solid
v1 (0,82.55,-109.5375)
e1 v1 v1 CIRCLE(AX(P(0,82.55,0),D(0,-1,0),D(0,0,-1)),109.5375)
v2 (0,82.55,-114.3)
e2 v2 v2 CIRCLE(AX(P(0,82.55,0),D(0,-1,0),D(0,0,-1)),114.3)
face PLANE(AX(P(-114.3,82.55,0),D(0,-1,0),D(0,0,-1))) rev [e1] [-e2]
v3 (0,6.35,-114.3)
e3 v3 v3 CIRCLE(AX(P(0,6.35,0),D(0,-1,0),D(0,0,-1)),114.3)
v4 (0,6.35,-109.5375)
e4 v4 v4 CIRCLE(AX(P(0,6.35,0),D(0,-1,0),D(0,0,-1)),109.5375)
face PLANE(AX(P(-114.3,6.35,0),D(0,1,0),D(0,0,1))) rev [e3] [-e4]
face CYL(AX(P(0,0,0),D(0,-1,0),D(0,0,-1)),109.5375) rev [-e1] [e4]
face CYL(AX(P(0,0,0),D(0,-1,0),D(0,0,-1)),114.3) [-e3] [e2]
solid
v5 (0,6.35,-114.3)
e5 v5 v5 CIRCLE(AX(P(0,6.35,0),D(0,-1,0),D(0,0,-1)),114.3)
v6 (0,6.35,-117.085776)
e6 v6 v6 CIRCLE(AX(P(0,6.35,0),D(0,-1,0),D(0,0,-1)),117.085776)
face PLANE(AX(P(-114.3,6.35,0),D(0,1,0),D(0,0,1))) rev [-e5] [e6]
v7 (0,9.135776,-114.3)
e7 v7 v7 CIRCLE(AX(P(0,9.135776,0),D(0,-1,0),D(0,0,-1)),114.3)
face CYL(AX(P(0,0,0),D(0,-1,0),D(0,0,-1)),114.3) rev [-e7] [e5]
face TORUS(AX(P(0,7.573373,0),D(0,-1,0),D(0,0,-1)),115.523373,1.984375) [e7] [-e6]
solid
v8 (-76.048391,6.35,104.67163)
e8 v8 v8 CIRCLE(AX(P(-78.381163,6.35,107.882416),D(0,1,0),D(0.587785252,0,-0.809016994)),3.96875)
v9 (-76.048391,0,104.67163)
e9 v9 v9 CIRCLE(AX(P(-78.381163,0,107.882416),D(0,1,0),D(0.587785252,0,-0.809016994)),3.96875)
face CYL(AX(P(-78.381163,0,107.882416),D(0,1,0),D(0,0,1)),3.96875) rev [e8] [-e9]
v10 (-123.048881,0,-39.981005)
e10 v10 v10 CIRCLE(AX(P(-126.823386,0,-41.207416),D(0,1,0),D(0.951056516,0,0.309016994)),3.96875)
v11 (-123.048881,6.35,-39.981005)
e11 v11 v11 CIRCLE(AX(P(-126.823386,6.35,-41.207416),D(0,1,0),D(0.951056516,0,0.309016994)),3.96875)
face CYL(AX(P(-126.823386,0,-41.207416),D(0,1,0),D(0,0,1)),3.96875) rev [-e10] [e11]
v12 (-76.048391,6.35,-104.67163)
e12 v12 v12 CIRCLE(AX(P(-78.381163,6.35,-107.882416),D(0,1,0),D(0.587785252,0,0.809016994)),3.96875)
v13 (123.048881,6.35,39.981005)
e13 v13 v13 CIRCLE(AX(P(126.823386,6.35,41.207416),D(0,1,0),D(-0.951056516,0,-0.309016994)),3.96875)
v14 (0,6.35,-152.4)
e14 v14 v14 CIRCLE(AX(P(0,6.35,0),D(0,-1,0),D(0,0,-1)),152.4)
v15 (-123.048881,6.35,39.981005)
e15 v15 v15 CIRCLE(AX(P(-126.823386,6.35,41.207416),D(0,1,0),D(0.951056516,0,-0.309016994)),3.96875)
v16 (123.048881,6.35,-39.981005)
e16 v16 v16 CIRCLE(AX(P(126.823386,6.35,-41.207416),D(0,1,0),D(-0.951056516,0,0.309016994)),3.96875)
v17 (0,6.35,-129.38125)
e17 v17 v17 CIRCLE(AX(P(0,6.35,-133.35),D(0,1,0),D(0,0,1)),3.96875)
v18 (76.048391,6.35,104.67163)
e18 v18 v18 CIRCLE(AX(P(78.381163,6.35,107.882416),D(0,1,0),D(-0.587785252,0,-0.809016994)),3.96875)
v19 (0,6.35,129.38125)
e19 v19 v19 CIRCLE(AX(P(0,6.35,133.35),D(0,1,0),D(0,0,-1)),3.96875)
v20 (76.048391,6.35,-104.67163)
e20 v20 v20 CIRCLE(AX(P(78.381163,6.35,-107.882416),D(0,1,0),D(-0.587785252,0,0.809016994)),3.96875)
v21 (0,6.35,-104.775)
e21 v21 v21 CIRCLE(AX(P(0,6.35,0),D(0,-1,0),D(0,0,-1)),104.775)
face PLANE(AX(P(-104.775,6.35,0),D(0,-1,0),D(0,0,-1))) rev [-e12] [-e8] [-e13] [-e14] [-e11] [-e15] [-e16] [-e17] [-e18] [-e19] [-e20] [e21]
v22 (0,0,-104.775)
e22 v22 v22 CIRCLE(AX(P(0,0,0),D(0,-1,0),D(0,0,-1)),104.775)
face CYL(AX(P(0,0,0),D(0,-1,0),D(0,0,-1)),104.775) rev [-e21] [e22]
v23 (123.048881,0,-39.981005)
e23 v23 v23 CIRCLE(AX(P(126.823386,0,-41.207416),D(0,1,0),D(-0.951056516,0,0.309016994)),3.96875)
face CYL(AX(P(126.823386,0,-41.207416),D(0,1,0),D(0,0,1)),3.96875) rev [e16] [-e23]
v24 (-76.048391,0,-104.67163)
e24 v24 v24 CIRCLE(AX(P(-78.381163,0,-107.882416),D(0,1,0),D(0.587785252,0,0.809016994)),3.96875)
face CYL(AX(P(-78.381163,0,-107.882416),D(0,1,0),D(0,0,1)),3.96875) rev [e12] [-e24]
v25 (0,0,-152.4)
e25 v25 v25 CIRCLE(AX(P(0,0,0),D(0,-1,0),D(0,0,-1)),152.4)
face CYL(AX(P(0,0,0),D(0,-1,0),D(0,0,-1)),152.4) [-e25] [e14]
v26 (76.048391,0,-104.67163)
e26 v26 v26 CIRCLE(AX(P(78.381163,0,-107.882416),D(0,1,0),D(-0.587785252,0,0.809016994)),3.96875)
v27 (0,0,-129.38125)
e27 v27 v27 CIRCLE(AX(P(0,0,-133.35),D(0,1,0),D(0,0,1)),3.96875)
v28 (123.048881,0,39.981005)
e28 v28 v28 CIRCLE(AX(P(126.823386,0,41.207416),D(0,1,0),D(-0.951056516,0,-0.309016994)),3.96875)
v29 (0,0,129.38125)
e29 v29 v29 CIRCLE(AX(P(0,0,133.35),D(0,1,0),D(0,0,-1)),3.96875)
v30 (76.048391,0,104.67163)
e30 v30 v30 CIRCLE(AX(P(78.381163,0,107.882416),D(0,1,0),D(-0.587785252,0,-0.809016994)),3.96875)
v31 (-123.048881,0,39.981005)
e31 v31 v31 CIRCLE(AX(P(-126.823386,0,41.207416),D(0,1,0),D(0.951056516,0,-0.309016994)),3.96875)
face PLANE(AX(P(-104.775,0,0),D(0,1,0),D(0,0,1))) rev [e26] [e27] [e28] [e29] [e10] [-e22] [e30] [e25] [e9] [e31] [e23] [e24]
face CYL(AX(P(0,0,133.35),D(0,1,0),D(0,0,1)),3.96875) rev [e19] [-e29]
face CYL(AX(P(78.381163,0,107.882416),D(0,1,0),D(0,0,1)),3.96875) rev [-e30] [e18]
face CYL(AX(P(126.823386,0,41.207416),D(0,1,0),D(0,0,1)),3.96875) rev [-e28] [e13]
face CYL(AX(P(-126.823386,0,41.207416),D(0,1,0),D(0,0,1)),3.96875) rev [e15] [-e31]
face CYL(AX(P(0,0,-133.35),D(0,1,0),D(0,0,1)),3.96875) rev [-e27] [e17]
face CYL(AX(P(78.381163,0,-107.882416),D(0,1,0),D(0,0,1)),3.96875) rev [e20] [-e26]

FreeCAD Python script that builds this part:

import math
import FreeCAD as App
import Part
import Sketcher
from FreeCAD import Vector
Q = App.Units.Quantity


def add_polygon(sketch, points):
    """Adds a closed chain of lines whose ends are joined by coincident constraints."""
    first, n = sketch.GeometryCount, len(points)
    for a, b in zip(points, points[1:] + points[:1]):
        sketch.addGeometry(Part.LineSegment(App.Vector(*a, 0), App.Vector(*b, 0)), False)
    for i in range(n):
        sketch.addConstraint(Sketcher.Constraint("Coincident", first + i, 2, first + (i + 1) % n, 1))

doc = App.newDocument("Part")
body = doc.addObject("PartDesign::Body", "Body")

# Sketch on XY plane
sketch1 = body.newObject("Sketcher::SketchObject", "Sketch")
sketch1.AttachmentSupport = (doc.getObject("XY_Plane"), [""])
sketch1.MapMode = "FlatFace"
add_polygon(sketch1, [(-152, 6), (-152, 0), (-105, 0), (-105, 6)])  # lines 0-3
sketch1.addConstraint(Sketcher.Constraint("Vertical", 0))
sketch1.addConstraint(Sketcher.Constraint("Horizontal", 1))
sketch1.addConstraint(Sketcher.Constraint("Vertical", 2))
sketch1.addConstraint(Sketcher.Constraint("Horizontal", 3))
sketch1.addConstraint(Sketcher.Constraint("PointOnObject", 0, 2, -1))
sketch1.addConstraint(Sketcher.Constraint("DistanceX", 0, 2, -1, 1, Q("6 in")))
sketch1.addConstraint(Sketcher.Constraint("DistanceY", 0, 2, 0, 1, Q("0.25 in")))
sketch1.addConstraint(Sketcher.Constraint("DistanceX", 1, 1, 1, 2, Q("1.875 in")))
revolution = body.newObject("PartDesign::Revolution", "Revolution")
revolution.Profile = sketch1
revolution.ReferenceAxis = (sketch1, ["V_Axis"])
revolution.Angle = 360

# Sketch on XZ plane
sketch2 = body.newObject("Sketcher::SketchObject", "Sketch001")
sketch2.AttachmentSupport = (doc.getObject("XZ_Plane"), [""])
sketch2.MapMode = "FlatFace"
sketch2.AttachmentOffset = App.Placement(Vector(0, 0, -0.25 * 25.4), App.Rotation())
sketch2.addGeometry(Part.Circle(Vector(0, -133.3, 0), Vector(0, 0, 1), 4), False)
sketch2.addConstraint(Sketcher.Constraint("PointOnObject", 0, 3, -2))
sketch2.addConstraint(Sketcher.Constraint("Diameter", 0, Q("0.3125 in")))
sketch2.addConstraint(Sketcher.Constraint("DistanceY", 0, 3, -1, 1, Q("5.25 in")))
pocket1 = body.newObject("PartDesign::Pocket", "Pocket")
pocket1.Profile = sketch2
pocket1.Type = "ThroughAll"
pocket1.Reversed = True
doc.recompute()

polarpattern = body.newObject("PartDesign::PolarPattern", "PolarPattern")
polarpattern.Originals = [pocket1]
polarpattern.Axis = (doc.getObject("Y_Axis"), [""])
polarpattern.Angle = 360
polarpattern.Occurrences = 10
body.Tip = polarpattern
body2 = doc.addObject("PartDesign::Body", "Body001")

# Sketch on XY plane
sketch3 = body2.newObject("Sketcher::SketchObject", "Sketch002")
sketch3.AttachmentSupport = (doc.getObject("XY_Plane001"), [""])
sketch3.MapMode = "FlatFace"
add_polygon(sketch3, [(-114.3, 82.5), (-114.3, 6.3), (-109.5, 6.3), (-109.5, 82.5)])  # lines 0-3
sketch3.addConstraint(Sketcher.Constraint("Vertical", 0))
sketch3.addConstraint(Sketcher.Constraint("Horizontal", 1))
sketch3.addConstraint(Sketcher.Constraint("Vertical", 2))
sketch3.addConstraint(Sketcher.Constraint("Horizontal", 3))
sketch3.addConstraint(Sketcher.Constraint("DistanceY", 0, 2, 0, 1, Q("3 in")))
sketch3.addConstraint(Sketcher.Constraint("DistanceX", 0, 2, -1, 1, Q("4.5 in")))
sketch3.addConstraint(Sketcher.Constraint("DistanceX", 1, 1, 1, 2, Q("0.1875 in")))
sketch3.addConstraint(Sketcher.Constraint("DistanceY", -1, 1, 0, 2, Q("0.25 in")))
revolution2 = body2.newObject("PartDesign::Revolution", "Revolution001")
revolution2.Profile = sketch3
revolution2.ReferenceAxis = (sketch3, ["V_Axis"])
revolution2.Angle = 360
body3 = doc.addObject("PartDesign::Body", "Body002")

# Sketch on XY plane
sketch4 = body3.newObject("Sketcher::SketchObject", "Sketch003")
sketch4.AttachmentSupport = (doc.getObject("XY_Plane002"), [""])
sketch4.MapMode = "FlatFace"
sketch4.addGeometry(Part.LineSegment(Vector(-117.1, 6.3, 0), Vector(-114.3, 6.3, 0)), False)
sketch4.addGeometry(Part.LineSegment(Vector(-114.3, 6.3, 0), Vector(-114.3, 9.1, 0)), False)
sketch4.addGeometry(Part.ArcOfCircle(Part.Circle(Vector(-115.5, 7.6, 0), Vector(0, 0, 1), 2), math.radians(52), math.radians(218)), False)
sketch4.addConstraint(Sketcher.Constraint("Coincident", 0, 2, 1, 1))
sketch4.addConstraint(Sketcher.Constraint("Coincident", 1, 2, 2, 1))
sketch4.addConstraint(Sketcher.Constraint("Coincident", 2, 2, 0, 1))
sketch4.addConstraint(Sketcher.Constraint("Horizontal", 0))
sketch4.addConstraint(Sketcher.Constraint("Vertical", 1))
sketch4.addConstraint(Sketcher.Constraint("Equal", 0, 1))
sketch4.addConstraint(Sketcher.Constraint("Radius", 2, Q("0.078125 in")))
sketch4.addConstraint(Sketcher.Constraint("DistanceX", 0, 2, -1, 1, Q("4.5 in")))
sketch4.addConstraint(Sketcher.Constraint("DistanceY", -1, 1, 0, 2, Q("0.25 in")))
sketch4.addConstraint(Sketcher.Constraint("DistanceX", 0, 1, 0, 2, 2.785776))
revolution3 = body3.newObject("PartDesign::Revolution", "Revolution002")
revolution3.Profile = sketch4
revolution3.ReferenceAxis = (sketch4, ["V_Axis"])
revolution3.Angle = 360

doc.recompute()
